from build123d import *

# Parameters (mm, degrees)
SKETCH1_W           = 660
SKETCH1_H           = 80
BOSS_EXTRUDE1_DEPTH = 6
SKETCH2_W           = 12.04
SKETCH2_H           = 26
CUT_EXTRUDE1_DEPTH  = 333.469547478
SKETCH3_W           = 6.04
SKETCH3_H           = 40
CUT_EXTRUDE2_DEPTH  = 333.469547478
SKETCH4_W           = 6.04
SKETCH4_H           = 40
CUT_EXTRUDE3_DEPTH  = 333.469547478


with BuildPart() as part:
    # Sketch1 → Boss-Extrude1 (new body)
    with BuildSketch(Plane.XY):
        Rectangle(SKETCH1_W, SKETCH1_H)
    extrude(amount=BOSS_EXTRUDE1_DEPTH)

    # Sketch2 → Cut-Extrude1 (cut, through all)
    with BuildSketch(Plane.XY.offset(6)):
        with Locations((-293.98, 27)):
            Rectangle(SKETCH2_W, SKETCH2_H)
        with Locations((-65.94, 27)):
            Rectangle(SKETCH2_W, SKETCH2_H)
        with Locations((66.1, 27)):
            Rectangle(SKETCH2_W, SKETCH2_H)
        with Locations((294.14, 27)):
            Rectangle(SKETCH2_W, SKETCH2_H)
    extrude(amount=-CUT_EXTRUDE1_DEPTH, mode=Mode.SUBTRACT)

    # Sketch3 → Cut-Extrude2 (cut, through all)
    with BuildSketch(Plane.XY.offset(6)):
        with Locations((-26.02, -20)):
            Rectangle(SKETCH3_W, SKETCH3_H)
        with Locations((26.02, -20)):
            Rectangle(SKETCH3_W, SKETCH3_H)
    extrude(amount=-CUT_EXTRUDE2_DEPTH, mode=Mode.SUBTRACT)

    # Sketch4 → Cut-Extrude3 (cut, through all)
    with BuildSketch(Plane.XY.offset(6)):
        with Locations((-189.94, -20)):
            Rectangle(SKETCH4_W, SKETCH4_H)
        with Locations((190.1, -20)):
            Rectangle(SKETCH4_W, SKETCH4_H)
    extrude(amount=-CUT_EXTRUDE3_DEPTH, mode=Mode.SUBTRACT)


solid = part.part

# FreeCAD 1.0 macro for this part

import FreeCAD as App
import Part
import Sketcher


def add_polygon(sketch, points):
    """Adds a closed chain of lines whose ends are joined by coincident constraints."""
    first, n = sketch.GeometryCount, len(points)
    for a, b in zip(points, points[1:] + points[:1]):
        sketch.addGeometry(Part.LineSegment(App.Vector(*a, 0), App.Vector(*b, 0)), False)
    for i in range(n):
        sketch.addConstraint(Sketcher.Constraint("Coincident", first + i, 2, first + (i + 1) % n, 1))

doc = App.newDocument("Part")
body = doc.addObject("PartDesign::Body", "Body")

sketch1 = body.newObject("Sketcher::SketchObject", "Sketch")
sketch1.AttachmentSupport = (doc.getObject("XY_Plane"), [""])
sketch1.MapMode = "FlatFace"
add_polygon(sketch1, [(-330, 40), (-330, -40), (330, -40), (330, 40)])
sketch1.addConstraint([
    Sketcher.Constraint("Vertical", 0),
    Sketcher.Constraint("Horizontal", 1),
    Sketcher.Constraint("Vertical", 2),
    Sketcher.Constraint("Horizontal", 3),
    Sketcher.Constraint("Symmetric", 0, 2, 2, 2, -1, 1),
    Sketcher.Constraint("DistanceX", 1, 1, 1, 2, 660.0),
    Sketcher.Constraint("DistanceY", 0, 2, 0, 1, 80.0),
])
pad1 = body.newObject("PartDesign::Pad", "Pad")
pad1.Profile = sketch1
pad1.Length = 6

sketch2 = body.newObject("Sketcher::SketchObject", "Sketch001")
sketch2.AttachmentSupport = (doc.getObject("XY_Plane"), [""])
sketch2.MapMode = "FlatFace"
sketch2.AttachmentOffset = App.Placement(App.Vector(0, 0, 6), App.Rotation())
add_polygon(sketch2, [(-300, 40), (-300, 14), (-287.96, 14), (-287.96, 40)])
add_polygon(sketch2, [(-71.96, 40), (-71.96, 14), (-59.92, 14), (-59.92, 40)])
add_polygon(sketch2, [(60.08, 40), (60.08, 14), (72.12, 14), (72.12, 40)])
add_polygon(sketch2, [(288.12, 40), (288.12, 14), (300.16, 14), (300.16, 40)])
sketch2.addConstraint([
    Sketcher.Constraint("Vertical", 0),
    Sketcher.Constraint("Horizontal", 1),
    Sketcher.Constraint("Vertical", 2),
    Sketcher.Constraint("Horizontal", 3),
    Sketcher.Constraint("Vertical", 4),
    Sketcher.Constraint("Horizontal", 5),
    Sketcher.Constraint("Vertical", 6),
    Sketcher.Constraint("Horizontal", 7),
    Sketcher.Constraint("Vertical", 8),
    Sketcher.Constraint("Horizontal", 9),
    Sketcher.Constraint("Vertical", 10),
    Sketcher.Constraint("Horizontal", 11),
    Sketcher.Constraint("Vertical", 12),
    Sketcher.Constraint("Horizontal", 13),
    Sketcher.Constraint("Vertical", 14),
    Sketcher.Constraint("Horizontal", 15),
    Sketcher.Constraint("Horizontal", 1, 2, 4, 2),
    Sketcher.Constraint("Horizontal", 3, 2, 6, 2),
    Sketcher.Constraint("Horizontal", 5, 2, 8, 2),
    Sketcher.Constraint("Horizontal", 7, 2, 10, 2),
    Sketcher.Constraint("Horizontal", 9, 2, 12, 2),
    Sketcher.Constraint("Horizontal", 11, 2, 14, 2),
    Sketcher.Constraint("Equal", 3, 5),
    Sketcher.Constraint("Equal", 7, 9),
    Sketcher.Constraint("Equal", 11, 13),
    Sketcher.Constraint("DistanceY", 0, 2, 0, 1, 26.0),
    Sketcher.Constraint("DistanceX", 0, 2, -1, 1, 300.0),
    Sketcher.Constraint("DistanceY", -1, 1, 0, 2, 14.0),
    Sketcher.Constraint("DistanceX", 1, 2, 4, 2, 216.0),
    Sketcher.Constraint("DistanceX", 5, 2, 8, 2, 120.0),
    Sketcher.Constraint("DistanceX", 9, 2, 12, 2, 216.0),
    Sketcher.Constraint("DistanceX", 1, 1, 1, 2, 12.04),
])
pocket1 = body.newObject("PartDesign::Pocket", "Pocket")
pocket1.Profile = sketch2
pocket1.Type = "ThroughAll"

sketch3 = body.newObject("Sketcher::SketchObject", "Sketch002")
sketch3.AttachmentSupport = (doc.getObject("XY_Plane"), [""])
sketch3.MapMode = "FlatFace"
sketch3.AttachmentOffset = App.Placement(App.Vector(0, 0, 6), App.Rotation())
add_polygon(sketch3, [(-29.04, 0), (-29.04, -40), (-23, -40), (-23, 0)])
add_polygon(sketch3, [(23, 0), (23, -40), (29.04, -40), (29.04, 0)])
sketch3.addConstraint([
    Sketcher.Constraint("Vertical", 0),
    Sketcher.Constraint("Horizontal", 1),
    Sketcher.Constraint("Vertical", 2),
    Sketcher.Constraint("Horizontal", 3),
    Sketcher.Constraint("Vertical", 4),
    Sketcher.Constraint("Horizontal", 5),
    Sketcher.Constraint("Vertical", 6),
    Sketcher.Constraint("Horizontal", 7),
    Sketcher.Constraint("Symmetric", 3, 2, 6, 2, -1, 1),
    Sketcher.Constraint("Symmetric", 1, 2, 4, 2, -2),
    Sketcher.Constraint("PointOnObject", 2, 2, -1),
    Sketcher.Constraint("DistanceY", 0, 2, 0, 1, 40.0),
    Sketcher.Constraint("DistanceX", 1, 2, -1, 1, 23.0),
    Sketcher.Constraint("DistanceX", 1, 1, 1, 2, 6.04),
])
pocket2 = body.newObject("PartDesign::Pocket", "Pocket001")
pocket2.Profile = sketch3
pocket2.Type = "ThroughAll"

sketch4 = body.newObject("Sketcher::SketchObject", "Sketch003")
sketch4.AttachmentSupport = (doc.getObject("XY_Plane"), [""])
sketch4.MapMode = "FlatFace"
sketch4.AttachmentOffset = App.Placement(App.Vector(0, 0, 6), App.Rotation())
add_polygon(sketch4, [(-192.96, 0), (-192.96, -40), (-186.92, -40), (-186.92, 0)])
add_polygon(sketch4, [(187.08, 0), (187.08, -40), (193.12, -40), (193.12, 0)])
sketch4.addConstraint([
    Sketcher.Constraint("Vertical", 0),
    Sketcher.Constraint("Horizontal", 1),
    Sketcher.Constraint("Vertical", 2),
    Sketcher.Constraint("Horizontal", 3),
    Sketcher.Constraint("Vertical", 4),
    Sketcher.Constraint("Horizontal", 5),
    Sketcher.Constraint("Vertical", 6),
    Sketcher.Constraint("Horizontal", 7),
    Sketcher.Constraint("PointOnObject", 2, 2, -1),
    Sketcher.Constraint("PointOnObject", 6, 2, -1),
    Sketcher.Constraint("Horizontal", 1, 2, 4, 2),
    Sketcher.Constraint("Equal", 3, 5),
    Sketcher.Constraint("DistanceY", 0, 2, 0, 1, 40.0),
    Sketcher.Constraint("DistanceX", 1, 2, 4, 2, 374.0),
    Sketcher.Constraint("DistanceX", 1, 1, 1, 2, 6.04),
    Sketcher.Constraint("DistanceX", 0, 2, -1, 1, 192.96),
])
pocket3 = body.newObject("PartDesign::Pocket", "Pocket002")
pocket3.Profile = sketch4
pocket3.Type = "ThroughAll"

doc.recompute()
